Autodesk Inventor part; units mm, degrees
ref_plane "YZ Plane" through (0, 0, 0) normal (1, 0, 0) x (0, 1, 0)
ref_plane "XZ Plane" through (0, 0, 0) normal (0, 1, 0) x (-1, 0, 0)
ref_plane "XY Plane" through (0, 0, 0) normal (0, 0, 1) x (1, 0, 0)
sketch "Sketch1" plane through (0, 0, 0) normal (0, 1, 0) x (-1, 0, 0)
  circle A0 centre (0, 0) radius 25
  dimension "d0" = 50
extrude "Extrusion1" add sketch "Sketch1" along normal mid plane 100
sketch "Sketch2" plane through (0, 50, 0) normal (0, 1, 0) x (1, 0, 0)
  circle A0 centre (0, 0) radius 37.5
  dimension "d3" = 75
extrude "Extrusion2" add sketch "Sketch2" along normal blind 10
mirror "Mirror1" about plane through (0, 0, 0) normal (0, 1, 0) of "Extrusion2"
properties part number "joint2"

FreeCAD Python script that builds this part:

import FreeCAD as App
import Part
import Sketcher
from FreeCAD import Vector
Q = App.Units.Quantity

doc = App.newDocument("Part")
body = doc.addObject("PartDesign::Body", "Body")

sketch1 = doc.addObject("Sketcher::SketchObject", "Sketch")
body.addObject(sketch1)
sketch1.AttachmentSupport = (doc.XZ_Plane, [""])
sketch1.MapMode = "FlatFace"
sketch1.addGeometry(Part.Circle(Vector(0, 0, 0), Vector(0, 0, 1), 25), False)
sketch1.addConstraint(Sketcher.Constraint("Coincident", 0, 3, -1, 1))
sketch1.addConstraint(Sketcher.Constraint("Diameter", 0, Q("50 mm")))
pad1 = doc.addObject("PartDesign::Pad", "Pad")
body.addObject(pad1)
pad1.Profile = sketch1
pad1.Length = 100
pad1.Midplane = True

sketch2 = doc.addObject("Sketcher::SketchObject", "Sketch001")
body.addObject(sketch2)
sketch2.AttachmentSupport = (doc.XZ_Plane, [""])
sketch2.MapMode = "FlatFace"
sketch2.AttachmentOffset = App.Placement(Vector(0, 0, -50), App.Rotation())
sketch2.addGeometry(Part.Circle(Vector(0, 0, 0), Vector(0, 0, 1), 38), False)
sketch2.addConstraint(Sketcher.Constraint("Coincident", 0, 3, -1, 1))
sketch2.addConstraint(Sketcher.Constraint("Diameter", 0, Q("75 mm")))
pad2 = doc.addObject("PartDesign::Pad", "Pad001")
body.addObject(pad2)
pad2.Profile = sketch2
pad2.Length = 10
pad2.Reversed = True
doc.recompute()

mirrored = doc.addObject("PartDesign::Mirrored", "Mirrored")
body.addObject(mirrored)
mirrored.Originals = [pad2]
mirrored.MirrorPlane = (doc.XZ_Plane, [""])
body.Tip = mirrored

doc.recompute()
